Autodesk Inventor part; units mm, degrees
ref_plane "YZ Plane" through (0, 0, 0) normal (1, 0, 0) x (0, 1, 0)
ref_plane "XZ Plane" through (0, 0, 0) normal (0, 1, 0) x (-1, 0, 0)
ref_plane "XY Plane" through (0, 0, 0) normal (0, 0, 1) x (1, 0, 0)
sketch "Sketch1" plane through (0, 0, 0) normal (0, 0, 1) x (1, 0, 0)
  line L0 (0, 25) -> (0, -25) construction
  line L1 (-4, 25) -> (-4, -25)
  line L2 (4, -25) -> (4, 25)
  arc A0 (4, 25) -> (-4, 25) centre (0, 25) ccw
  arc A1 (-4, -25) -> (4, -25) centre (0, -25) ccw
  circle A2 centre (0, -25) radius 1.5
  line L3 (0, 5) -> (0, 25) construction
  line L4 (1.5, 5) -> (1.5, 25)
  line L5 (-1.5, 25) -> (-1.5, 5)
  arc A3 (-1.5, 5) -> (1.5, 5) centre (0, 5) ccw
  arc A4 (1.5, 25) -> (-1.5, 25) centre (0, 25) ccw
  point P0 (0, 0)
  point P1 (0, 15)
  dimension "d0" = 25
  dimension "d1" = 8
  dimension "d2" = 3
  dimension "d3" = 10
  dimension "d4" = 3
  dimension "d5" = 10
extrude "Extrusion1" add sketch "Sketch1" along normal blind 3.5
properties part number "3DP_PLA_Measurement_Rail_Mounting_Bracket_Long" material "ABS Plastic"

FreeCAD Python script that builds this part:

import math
import FreeCAD as App
import Part
import Sketcher

doc = App.newDocument("Part")
body = doc.addObject("PartDesign::Body", "Body")

sketch1 = body.newObject("Sketcher::SketchObject", "Sketch")
sketch1.AttachmentSupport = (doc.getObject("XY_Plane"), [""])
sketch1.MapMode = "FlatFace"
sketch1.addGeometry([
    Part.ArcOfCircle(Part.Circle(App.Vector(0, 25, 0), App.Vector(0, 0, 1), 4), math.radians(0), math.radians(180)),
    Part.LineSegment(App.Vector(-4, 25, 0), App.Vector(-4, -25, 0)),
    Part.ArcOfCircle(Part.Circle(App.Vector(0, -25, 0), App.Vector(0, 0, 1), 4), math.radians(180), math.radians(360)),
    Part.LineSegment(App.Vector(4, -25, 0), App.Vector(4, 25, 0)),
    Part.Circle(App.Vector(0, -25, 0), App.Vector(0, 0, 1), 1.5),
    Part.LineSegment(App.Vector(1.5, 25, 0), App.Vector(1.5, 5, 0)),
    Part.ArcOfCircle(Part.Circle(App.Vector(0, 5, 0), App.Vector(0, 0, 1), 1.5), math.radians(180), math.radians(360)),
    Part.LineSegment(App.Vector(-1.5, 5, 0), App.Vector(-1.5, 25, 0)),
    Part.ArcOfCircle(Part.Circle(App.Vector(0, 25, 0), App.Vector(0, 0, 1), 1.5), math.radians(0), math.radians(180)),
], False)
sketch1.addConstraint([
    Sketcher.Constraint("Tangent", 0, 2, 1, 1),
    Sketcher.Constraint("Tangent", 1, 2, 2, 1),
    Sketcher.Constraint("Tangent", 2, 2, 3, 1),
    Sketcher.Constraint("Tangent", 3, 2, 0, 1),
    Sketcher.Constraint("Tangent", 5, 2, 6, 2),
    Sketcher.Constraint("Tangent", 6, 1, 7, 1),
    Sketcher.Constraint("Tangent", 7, 2, 8, 2),
    Sketcher.Constraint("Tangent", 8, 1, 5, 1),
    Sketcher.Constraint("Vertical", 1),
    Sketcher.Constraint("Vertical", 3),
    Sketcher.Constraint("Vertical", 5),
    Sketcher.Constraint("Vertical", 7),
    Sketcher.Constraint("Coincident", 4, 3, 2, 3),
    Sketcher.Constraint("Coincident", 8, 3, 0, 3),
    Sketcher.Constraint("Equal", 4, 6),
    Sketcher.Constraint("Symmetric", 0, 3, 2, 3, -1, 1),
    Sketcher.Constraint("Diameter", 4, 3.0),
    Sketcher.Constraint("Radius", 0, 4.0),
    Sketcher.Constraint("DistanceY", -1, 1, 0, 3, 25.0),
    Sketcher.Constraint("DistanceY", 5, 2, 5, 1, 20.0),
])
pad1 = body.newObject("PartDesign::Pad", "Pad")
pad1.Profile = sketch1
pad1.Length = 3.5

doc.recompute()
